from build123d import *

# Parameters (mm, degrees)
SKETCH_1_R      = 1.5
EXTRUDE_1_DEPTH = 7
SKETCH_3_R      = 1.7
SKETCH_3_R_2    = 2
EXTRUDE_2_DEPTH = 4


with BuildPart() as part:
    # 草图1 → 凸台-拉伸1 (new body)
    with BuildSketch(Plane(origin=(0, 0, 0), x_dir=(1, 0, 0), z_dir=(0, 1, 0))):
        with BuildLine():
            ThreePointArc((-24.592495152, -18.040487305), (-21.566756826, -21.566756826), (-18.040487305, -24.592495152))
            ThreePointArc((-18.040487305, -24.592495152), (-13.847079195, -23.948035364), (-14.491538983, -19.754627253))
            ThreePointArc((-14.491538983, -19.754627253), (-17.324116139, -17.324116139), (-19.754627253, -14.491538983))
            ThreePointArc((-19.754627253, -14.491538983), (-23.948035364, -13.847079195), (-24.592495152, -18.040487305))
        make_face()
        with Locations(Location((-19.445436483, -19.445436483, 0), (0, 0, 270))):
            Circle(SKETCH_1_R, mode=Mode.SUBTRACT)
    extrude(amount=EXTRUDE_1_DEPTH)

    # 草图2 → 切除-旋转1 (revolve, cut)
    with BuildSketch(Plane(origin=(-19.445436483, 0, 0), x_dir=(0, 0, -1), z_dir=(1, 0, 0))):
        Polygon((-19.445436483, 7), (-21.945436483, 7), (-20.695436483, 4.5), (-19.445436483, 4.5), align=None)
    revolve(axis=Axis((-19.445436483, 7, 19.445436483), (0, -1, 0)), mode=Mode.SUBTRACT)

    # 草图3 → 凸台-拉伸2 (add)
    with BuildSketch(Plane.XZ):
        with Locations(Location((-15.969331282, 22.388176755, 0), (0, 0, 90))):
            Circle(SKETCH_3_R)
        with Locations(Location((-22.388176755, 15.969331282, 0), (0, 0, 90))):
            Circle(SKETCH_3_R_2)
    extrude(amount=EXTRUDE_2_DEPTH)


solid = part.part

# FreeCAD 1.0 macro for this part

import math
import FreeCAD as App
import Part
import Sketcher
Q = App.Units.Quantity


def add_polygon(sketch, points):
    """Adds a closed chain of lines whose ends are joined by coincident constraints."""
    first, n = sketch.GeometryCount, len(points)
    for a, b in zip(points, points[1:] + points[:1]):
        sketch.addGeometry(Part.LineSegment(App.Vector(*a, 0), App.Vector(*b, 0)), False)
    for i in range(n):
        sketch.addConstraint(Sketcher.Constraint("Coincident", first + i, 2, first + (i + 1) % n, 1))

doc = App.newDocument("Part")
body = doc.addObject("PartDesign::Body", "Body")

sketch1 = body.newObject("Sketcher::SketchObject", "Sketch")
sketch1.AttachmentSupport = (doc.getObject("XZ_Plane"), [""])
sketch1.MapMode = "FlatFace"
sketch1.addGeometry(Part.ArcOfCircle(Part.Circle(App.Vector(0, 0, 0), App.Vector(0, 0, 1), 30.5), math.radians(126.262913), math.radians(143.737087)), False)
sketch1.addGeometry(Part.ArcOfCircle(Part.Circle(App.Vector(-16.266013, 22.173561, 0), App.Vector(0, 0, 1), 3), math.radians(-53.737087), math.radians(126.262913)), False)
sketch1.addGeometry(Part.ArcOfCircle(Part.Circle(App.Vector(0, 0, 0), App.Vector(0, 0, 1), 24.5), math.radians(126.262913), math.radians(143.737087)), False)
sketch1.addGeometry(Part.ArcOfCircle(Part.Circle(App.Vector(-22.173561, 16.266013, 0), App.Vector(0, 0, 1), 3), math.radians(143.737087), math.radians(323.737087)), False)
sketch1.addGeometry(Part.Circle(App.Vector(-19.445436, 19.445436, 0), App.Vector(0, 0, 1), 1.5), False)
sketch1.addConstraint(Sketcher.Constraint("Tangent", 0, 1, 1, 2))
sketch1.addConstraint(Sketcher.Constraint("Tangent", 1, 1, 2, 1))
sketch1.addConstraint(Sketcher.Constraint("Tangent", 2, 2, 3, 2))
sketch1.addConstraint(Sketcher.Constraint("Tangent", 3, 1, 0, 2))
sketch1.addConstraint(Sketcher.Constraint("Coincident", 0, 3, -1, 1))
sketch1.addConstraint(Sketcher.Constraint("Coincident", 2, 3, -1, 1))
sketch1.addConstraint(Sketcher.Constraint("Diameter", 4, Q("3 mm")))
sketch1.addConstraint(Sketcher.Constraint("Radius", 1, Q("3 mm")))
sketch1.addConstraint(Sketcher.Constraint("Radius", 0, Q("30.5 mm")))
sketch1.addConstraint(Sketcher.Constraint("DistanceY", -1, 1, 1, 3, Q("22.173561 mm")))
sketch1.addConstraint(Sketcher.Constraint("DistanceX", 3, 3, -1, 1, Q("22.173561 mm")))
sketch1.addConstraint(Sketcher.Constraint("DistanceX", 4, 3, 0, 1, Q("1.404949 mm")))
sketch1.addConstraint(Sketcher.Constraint("DistanceY", 4, 3, 0, 1, Q("5.147059 mm")))
pad1 = body.newObject("PartDesign::Pad", "Pad")
pad1.Profile = sketch1
pad1.Length = 7
pad1.Reversed = True

sketch2 = body.newObject("Sketcher::SketchObject", "Sketch001")
sketch2.AttachmentSupport = (doc.getObject("YZ_Plane"), [""])
sketch2.MapMode = "FlatFace"
sketch2.AttachmentOffset = App.Placement(App.Vector(0, 0, -19.445436), App.Rotation())
add_polygon(sketch2, [(7, 19.445436), (7, 21.945436), (4.5, 20.695436), (4.5, 19.445436)])
sketch2.addGeometry(Part.LineSegment(App.Vector(7, 19.445436, 0), App.Vector(4.5, 19.445436, 0)), True)
sketch2.addConstraint(Sketcher.Constraint("Vertical", 0))
sketch2.addConstraint(Sketcher.Constraint("Vertical", 2))
sketch2.addConstraint(Sketcher.Constraint("Horizontal", 3))
sketch2.addConstraint(Sketcher.Constraint("Horizontal", 4))
sketch2.addConstraint(Sketcher.Constraint("Coincident", 4, 1, 3, 2))
sketch2.addConstraint(Sketcher.Constraint("Vertical", 1, 2, 4, 2))
sketch2.addConstraint(Sketcher.Constraint("Equal", 4, 0))
sketch2.addConstraint(Sketcher.Constraint("DistanceX", 3, 1, 3, 2, Q("2.5 mm")))
sketch2.addConstraint(Sketcher.Constraint("DistanceX", -1, 1, 0, 2, Q("7 mm")))
sketch2.addConstraint(Sketcher.Constraint("DistanceY", 2, 2, 2, 1, Q("1.25 mm")))
sketch2.addConstraint(Sketcher.Constraint("DistanceY", -1, 1, 0, 2, Q("21.945436 mm")))
groove = body.newObject("PartDesign::Groove", "Groove")
groove.Profile = sketch2
groove.ReferenceAxis = (sketch2, ["Axis0"])
groove.Angle = 360

sketch3 = body.newObject("Sketcher::SketchObject", "Sketch002")
sketch3.AttachmentSupport = (doc.getObject("XZ_Plane"), [""])
sketch3.MapMode = "FlatFace"
sketch3.addGeometry(Part.Circle(App.Vector(-15.969331, 22.388177, 0), App.Vector(0, 0, 1), 1.7), False)
sketch3.addGeometry(Part.Circle(App.Vector(-22.388177, 15.969331, 0), App.Vector(0, 0, 1), 2), False)
sketch3.addConstraint(Sketcher.Constraint("Diameter", 1, Q("4 mm")))
sketch3.addConstraint(Sketcher.Constraint("Diameter", 0, Q("3.4 mm")))
sketch3.addConstraint(Sketcher.Constraint("DistanceX", 0, 3, -1, 1, Q("15.969331 mm")))
sketch3.addConstraint(Sketcher.Constraint("DistanceY", -1, 1, 1, 3, Q("15.969331 mm")))
sketch3.addConstraint(Sketcher.Constraint("DistanceY", -1, 1, 0, 3, Q("22.388177 mm")))
sketch3.addConstraint(Sketcher.Constraint("DistanceX", 1, 3, -1, 1, Q("22.388177 mm")))
pad2 = body.newObject("PartDesign::Pad", "Pad001")
pad2.Profile = sketch3
pad2.Length = 4

doc.recompute()
